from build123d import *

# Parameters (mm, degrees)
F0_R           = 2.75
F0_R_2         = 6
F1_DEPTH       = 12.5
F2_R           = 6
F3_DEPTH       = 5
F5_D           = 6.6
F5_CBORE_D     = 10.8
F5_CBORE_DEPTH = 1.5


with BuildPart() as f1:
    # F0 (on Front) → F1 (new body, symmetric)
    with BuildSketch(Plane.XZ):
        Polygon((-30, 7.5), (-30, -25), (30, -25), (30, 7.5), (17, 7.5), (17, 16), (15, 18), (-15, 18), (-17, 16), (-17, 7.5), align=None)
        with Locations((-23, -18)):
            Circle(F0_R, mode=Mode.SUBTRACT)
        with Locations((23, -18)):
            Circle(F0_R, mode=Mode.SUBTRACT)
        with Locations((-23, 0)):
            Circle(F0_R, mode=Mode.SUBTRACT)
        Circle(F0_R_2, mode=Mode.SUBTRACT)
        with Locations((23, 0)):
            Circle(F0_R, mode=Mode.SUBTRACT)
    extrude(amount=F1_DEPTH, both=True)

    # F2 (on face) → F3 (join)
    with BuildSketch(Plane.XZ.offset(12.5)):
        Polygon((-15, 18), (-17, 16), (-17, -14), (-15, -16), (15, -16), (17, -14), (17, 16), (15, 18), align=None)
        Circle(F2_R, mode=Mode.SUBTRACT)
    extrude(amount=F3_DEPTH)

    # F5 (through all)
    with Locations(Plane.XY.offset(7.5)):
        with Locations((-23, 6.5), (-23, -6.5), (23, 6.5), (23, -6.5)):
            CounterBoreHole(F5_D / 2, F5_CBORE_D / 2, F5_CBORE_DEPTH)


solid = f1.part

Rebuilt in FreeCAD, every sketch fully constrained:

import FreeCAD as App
import Part
import Sketcher
from FreeCAD import Vector


def add_polygon(sketch, points):
    """Adds a closed chain of lines whose ends are joined by coincident constraints."""
    first, n = sketch.GeometryCount, len(points)
    for a, b in zip(points, points[1:] + points[:1]):
        sketch.addGeometry(Part.LineSegment(App.Vector(*a, 0), App.Vector(*b, 0)), False)
    for i in range(n):
        sketch.addConstraint(Sketcher.Constraint("Coincident", first + i, 2, first + (i + 1) % n, 1))

doc = App.newDocument("Part")
body = doc.addObject("PartDesign::Body", "Body")

# Sketch on XZ plane
sketch1 = body.newObject("Sketcher::SketchObject", "Sketch")
sketch1.AttachmentSupport = (doc.getObject("XZ_Plane"), [""])
sketch1.MapMode = "FlatFace"
add_polygon(sketch1, [(-30, 7.5), (-30, -25), (30, -25), (30, 7.5), (17, 7.5), (17, 16), (15, 18), (-15, 18), (-17, 16), (-17, 7.5)])  # lines 0-9
sketch1.addGeometry(Part.Circle(Vector(-23, -18, 0), Vector(0, 0, 1), 2.8), False)  # 10
sketch1.addGeometry(Part.Circle(Vector(23, -18, 0), Vector(0, 0, 1), 2.8), False)  # 11
sketch1.addGeometry(Part.Circle(Vector(-23, 0, 0), Vector(0, 0, 1), 2.8), False)  # 12
sketch1.addGeometry(Part.Circle(Vector(0, 0, 0), Vector(0, 0, 1), 6), False)  # 13
sketch1.addGeometry(Part.Circle(Vector(23, 0, 0), Vector(0, 0, 1), 2.8), False)  # 14
sketch1.addConstraint([
    Sketcher.Constraint("Vertical", 0),
    Sketcher.Constraint("Horizontal", 1),
    Sketcher.Constraint("Vertical", 2),
    Sketcher.Constraint("Horizontal", 3),
    Sketcher.Constraint("Vertical", 4),
    Sketcher.Constraint("Horizontal", 6),
    Sketcher.Constraint("Vertical", 8),
    Sketcher.Constraint("Horizontal", 9),
    Sketcher.Constraint("Coincident", 13, 3, -1, 1),
    Sketcher.Constraint("Equal", 10, 11),
    Sketcher.Constraint("Equal", 11, 12),
    Sketcher.Constraint("Equal", 12, 14),
    Sketcher.Constraint("Symmetric", 12, 3, 14, 3, -1, 1),
    Sketcher.Constraint("Symmetric", 10, 3, 11, 3, -2),
    Sketcher.Constraint("Symmetric", 4, 2, 7, 2, -2),
    Sketcher.Constraint("Symmetric", 2, 2, 9, 2, -2),
    Sketcher.Constraint("PointOnObject", 12, 3, -1),
    Sketcher.Constraint("Perpendicular", 5, 7),
    Sketcher.Constraint("Vertical", 10, 3, 12, 3),
    Sketcher.Constraint("Equal", 5, 7),
    Sketcher.Constraint("Diameter", 13, 12.0),
    Sketcher.Constraint("Diameter", 10, 5.5),
    Sketcher.Constraint("DistanceX", 1, 1, 1, 2, 60.0),
    Sketcher.Constraint("DistanceX", 3, 2, 3, 1, 13.0),
    Sketcher.Constraint("DistanceX", 6, 2, 6, 1, 30.0),
    Sketcher.Constraint("DistanceY", 0, 2, 0, 1, 32.5),
    Sketcher.Constraint("DistanceY", 4, 1, 4, 2, 8.5),
    Sketcher.Constraint("DistanceX", 10, 3, -1, 1, 23.0),
    Sketcher.Constraint("DistanceY", 10, 3, -1, 1, 18.0),
    Sketcher.Constraint("DistanceY", 0, 2, -1, 1, 25.0),
])
pad1 = body.newObject("PartDesign::Pad", "Pad")
pad1.Profile = sketch1
pad1.Length = 25
pad1.Midplane = True

# Sketch on XZ plane
sketch2 = body.newObject("Sketcher::SketchObject", "Sketch001")
sketch2.AttachmentSupport = (doc.getObject("XZ_Plane"), [""])
sketch2.MapMode = "FlatFace"
sketch2.AttachmentOffset = App.Placement(Vector(0, 0, 12.5), App.Rotation())
add_polygon(sketch2, [(-15, 18), (-17, 16), (-17, -14), (-15, -16), (15, -16), (17, -14), (17, 16), (15, 18)])  # lines 0-7
sketch2.addGeometry(Part.Circle(Vector(0, 0, 0), Vector(0, 0, 1), 6), False)  # 8
sketch2.addConstraint([
    Sketcher.Constraint("Vertical", 1),
    Sketcher.Constraint("Horizontal", 3),
    Sketcher.Constraint("Vertical", 5),
    Sketcher.Constraint("Horizontal", 7),
    Sketcher.Constraint("Coincident", 8, 3, -1, 1),
    Sketcher.Constraint("Symmetric", 1, 2, 4, 2, -2),
    Sketcher.Constraint("Perpendicular", 0, 2),
    Sketcher.Constraint("Perpendicular", 2, 4),
    Sketcher.Constraint("Perpendicular", 4, 6),
    Sketcher.Constraint("Horizontal", 0, 2, 5, 2),
    Sketcher.Constraint("Vertical", 3, 2, 6, 2),
    Sketcher.Constraint("Vertical", 2, 2, 7, 2),
    Sketcher.Constraint("Equal", 7, 1),
    Sketcher.Constraint("Diameter", 8, 12.0),
    Sketcher.Constraint("DistanceX", 3, 1, 3, 2, 30.0),
    Sketcher.Constraint("DistanceX", 0, 2, -1, 1, 17.0),
    Sketcher.Constraint("DistanceY", -1, 1, 0, 2, 16.0),
])
pad2 = body.newObject("PartDesign::Pad", "Pad001")
pad2.Profile = sketch2
pad2.Length = 5

# Sketch on XY plane
sketch3 = body.newObject("Sketcher::SketchObject", "Sketch002")
sketch3.AttachmentSupport = (doc.getObject("XY_Plane"), [""])
sketch3.MapMode = "FlatFace"
sketch3.AttachmentOffset = App.Placement(Vector(0, 0, 7.5), App.Rotation())
sketch3.addGeometry([
    Part.Circle(Vector(-23, 6.5, 0), Vector(0, 0, 1), 3.3),
    Part.Circle(Vector(-23, -6.5, 0), Vector(0, 0, 1), 3.3),
    Part.Circle(Vector(23, 6.5, 0), Vector(0, 0, 1), 3.3),
    Part.Circle(Vector(23, -6.5, 0), Vector(0, 0, 1), 3.3),
], False)
sketch3.addConstraint([
    Sketcher.Constraint("Equal", 0, 1),
    Sketcher.Constraint("Equal", 1, 2),
    Sketcher.Constraint("Equal", 2, 3),
    Sketcher.Constraint("Symmetric", 1, 3, 2, 3, -1, 1),
    Sketcher.Constraint("Symmetric", 0, 3, 3, 3, -1, 1),
    Sketcher.Constraint("Symmetric", 0, 3, 2, 3, -2),
    Sketcher.Constraint("Diameter", 0, 6.6),
    Sketcher.Constraint("DistanceX", 0, 3, -1, 1, 23.0),
    Sketcher.Constraint("DistanceY", 1, 3, 0, 3, 13.0),
])
doc.recompute()
hole = body.newObject("PartDesign::Hole", "Hole")
hole.Profile = sketch3
hole.ThreadType = "None"
hole.Diameter = 6.6
hole.DepthType = "ThroughAll"
hole.HoleCutType = "Counterbore"
hole.HoleCutDiameter = 10.8
hole.HoleCutDepth = 1.5

doc.recompute()
